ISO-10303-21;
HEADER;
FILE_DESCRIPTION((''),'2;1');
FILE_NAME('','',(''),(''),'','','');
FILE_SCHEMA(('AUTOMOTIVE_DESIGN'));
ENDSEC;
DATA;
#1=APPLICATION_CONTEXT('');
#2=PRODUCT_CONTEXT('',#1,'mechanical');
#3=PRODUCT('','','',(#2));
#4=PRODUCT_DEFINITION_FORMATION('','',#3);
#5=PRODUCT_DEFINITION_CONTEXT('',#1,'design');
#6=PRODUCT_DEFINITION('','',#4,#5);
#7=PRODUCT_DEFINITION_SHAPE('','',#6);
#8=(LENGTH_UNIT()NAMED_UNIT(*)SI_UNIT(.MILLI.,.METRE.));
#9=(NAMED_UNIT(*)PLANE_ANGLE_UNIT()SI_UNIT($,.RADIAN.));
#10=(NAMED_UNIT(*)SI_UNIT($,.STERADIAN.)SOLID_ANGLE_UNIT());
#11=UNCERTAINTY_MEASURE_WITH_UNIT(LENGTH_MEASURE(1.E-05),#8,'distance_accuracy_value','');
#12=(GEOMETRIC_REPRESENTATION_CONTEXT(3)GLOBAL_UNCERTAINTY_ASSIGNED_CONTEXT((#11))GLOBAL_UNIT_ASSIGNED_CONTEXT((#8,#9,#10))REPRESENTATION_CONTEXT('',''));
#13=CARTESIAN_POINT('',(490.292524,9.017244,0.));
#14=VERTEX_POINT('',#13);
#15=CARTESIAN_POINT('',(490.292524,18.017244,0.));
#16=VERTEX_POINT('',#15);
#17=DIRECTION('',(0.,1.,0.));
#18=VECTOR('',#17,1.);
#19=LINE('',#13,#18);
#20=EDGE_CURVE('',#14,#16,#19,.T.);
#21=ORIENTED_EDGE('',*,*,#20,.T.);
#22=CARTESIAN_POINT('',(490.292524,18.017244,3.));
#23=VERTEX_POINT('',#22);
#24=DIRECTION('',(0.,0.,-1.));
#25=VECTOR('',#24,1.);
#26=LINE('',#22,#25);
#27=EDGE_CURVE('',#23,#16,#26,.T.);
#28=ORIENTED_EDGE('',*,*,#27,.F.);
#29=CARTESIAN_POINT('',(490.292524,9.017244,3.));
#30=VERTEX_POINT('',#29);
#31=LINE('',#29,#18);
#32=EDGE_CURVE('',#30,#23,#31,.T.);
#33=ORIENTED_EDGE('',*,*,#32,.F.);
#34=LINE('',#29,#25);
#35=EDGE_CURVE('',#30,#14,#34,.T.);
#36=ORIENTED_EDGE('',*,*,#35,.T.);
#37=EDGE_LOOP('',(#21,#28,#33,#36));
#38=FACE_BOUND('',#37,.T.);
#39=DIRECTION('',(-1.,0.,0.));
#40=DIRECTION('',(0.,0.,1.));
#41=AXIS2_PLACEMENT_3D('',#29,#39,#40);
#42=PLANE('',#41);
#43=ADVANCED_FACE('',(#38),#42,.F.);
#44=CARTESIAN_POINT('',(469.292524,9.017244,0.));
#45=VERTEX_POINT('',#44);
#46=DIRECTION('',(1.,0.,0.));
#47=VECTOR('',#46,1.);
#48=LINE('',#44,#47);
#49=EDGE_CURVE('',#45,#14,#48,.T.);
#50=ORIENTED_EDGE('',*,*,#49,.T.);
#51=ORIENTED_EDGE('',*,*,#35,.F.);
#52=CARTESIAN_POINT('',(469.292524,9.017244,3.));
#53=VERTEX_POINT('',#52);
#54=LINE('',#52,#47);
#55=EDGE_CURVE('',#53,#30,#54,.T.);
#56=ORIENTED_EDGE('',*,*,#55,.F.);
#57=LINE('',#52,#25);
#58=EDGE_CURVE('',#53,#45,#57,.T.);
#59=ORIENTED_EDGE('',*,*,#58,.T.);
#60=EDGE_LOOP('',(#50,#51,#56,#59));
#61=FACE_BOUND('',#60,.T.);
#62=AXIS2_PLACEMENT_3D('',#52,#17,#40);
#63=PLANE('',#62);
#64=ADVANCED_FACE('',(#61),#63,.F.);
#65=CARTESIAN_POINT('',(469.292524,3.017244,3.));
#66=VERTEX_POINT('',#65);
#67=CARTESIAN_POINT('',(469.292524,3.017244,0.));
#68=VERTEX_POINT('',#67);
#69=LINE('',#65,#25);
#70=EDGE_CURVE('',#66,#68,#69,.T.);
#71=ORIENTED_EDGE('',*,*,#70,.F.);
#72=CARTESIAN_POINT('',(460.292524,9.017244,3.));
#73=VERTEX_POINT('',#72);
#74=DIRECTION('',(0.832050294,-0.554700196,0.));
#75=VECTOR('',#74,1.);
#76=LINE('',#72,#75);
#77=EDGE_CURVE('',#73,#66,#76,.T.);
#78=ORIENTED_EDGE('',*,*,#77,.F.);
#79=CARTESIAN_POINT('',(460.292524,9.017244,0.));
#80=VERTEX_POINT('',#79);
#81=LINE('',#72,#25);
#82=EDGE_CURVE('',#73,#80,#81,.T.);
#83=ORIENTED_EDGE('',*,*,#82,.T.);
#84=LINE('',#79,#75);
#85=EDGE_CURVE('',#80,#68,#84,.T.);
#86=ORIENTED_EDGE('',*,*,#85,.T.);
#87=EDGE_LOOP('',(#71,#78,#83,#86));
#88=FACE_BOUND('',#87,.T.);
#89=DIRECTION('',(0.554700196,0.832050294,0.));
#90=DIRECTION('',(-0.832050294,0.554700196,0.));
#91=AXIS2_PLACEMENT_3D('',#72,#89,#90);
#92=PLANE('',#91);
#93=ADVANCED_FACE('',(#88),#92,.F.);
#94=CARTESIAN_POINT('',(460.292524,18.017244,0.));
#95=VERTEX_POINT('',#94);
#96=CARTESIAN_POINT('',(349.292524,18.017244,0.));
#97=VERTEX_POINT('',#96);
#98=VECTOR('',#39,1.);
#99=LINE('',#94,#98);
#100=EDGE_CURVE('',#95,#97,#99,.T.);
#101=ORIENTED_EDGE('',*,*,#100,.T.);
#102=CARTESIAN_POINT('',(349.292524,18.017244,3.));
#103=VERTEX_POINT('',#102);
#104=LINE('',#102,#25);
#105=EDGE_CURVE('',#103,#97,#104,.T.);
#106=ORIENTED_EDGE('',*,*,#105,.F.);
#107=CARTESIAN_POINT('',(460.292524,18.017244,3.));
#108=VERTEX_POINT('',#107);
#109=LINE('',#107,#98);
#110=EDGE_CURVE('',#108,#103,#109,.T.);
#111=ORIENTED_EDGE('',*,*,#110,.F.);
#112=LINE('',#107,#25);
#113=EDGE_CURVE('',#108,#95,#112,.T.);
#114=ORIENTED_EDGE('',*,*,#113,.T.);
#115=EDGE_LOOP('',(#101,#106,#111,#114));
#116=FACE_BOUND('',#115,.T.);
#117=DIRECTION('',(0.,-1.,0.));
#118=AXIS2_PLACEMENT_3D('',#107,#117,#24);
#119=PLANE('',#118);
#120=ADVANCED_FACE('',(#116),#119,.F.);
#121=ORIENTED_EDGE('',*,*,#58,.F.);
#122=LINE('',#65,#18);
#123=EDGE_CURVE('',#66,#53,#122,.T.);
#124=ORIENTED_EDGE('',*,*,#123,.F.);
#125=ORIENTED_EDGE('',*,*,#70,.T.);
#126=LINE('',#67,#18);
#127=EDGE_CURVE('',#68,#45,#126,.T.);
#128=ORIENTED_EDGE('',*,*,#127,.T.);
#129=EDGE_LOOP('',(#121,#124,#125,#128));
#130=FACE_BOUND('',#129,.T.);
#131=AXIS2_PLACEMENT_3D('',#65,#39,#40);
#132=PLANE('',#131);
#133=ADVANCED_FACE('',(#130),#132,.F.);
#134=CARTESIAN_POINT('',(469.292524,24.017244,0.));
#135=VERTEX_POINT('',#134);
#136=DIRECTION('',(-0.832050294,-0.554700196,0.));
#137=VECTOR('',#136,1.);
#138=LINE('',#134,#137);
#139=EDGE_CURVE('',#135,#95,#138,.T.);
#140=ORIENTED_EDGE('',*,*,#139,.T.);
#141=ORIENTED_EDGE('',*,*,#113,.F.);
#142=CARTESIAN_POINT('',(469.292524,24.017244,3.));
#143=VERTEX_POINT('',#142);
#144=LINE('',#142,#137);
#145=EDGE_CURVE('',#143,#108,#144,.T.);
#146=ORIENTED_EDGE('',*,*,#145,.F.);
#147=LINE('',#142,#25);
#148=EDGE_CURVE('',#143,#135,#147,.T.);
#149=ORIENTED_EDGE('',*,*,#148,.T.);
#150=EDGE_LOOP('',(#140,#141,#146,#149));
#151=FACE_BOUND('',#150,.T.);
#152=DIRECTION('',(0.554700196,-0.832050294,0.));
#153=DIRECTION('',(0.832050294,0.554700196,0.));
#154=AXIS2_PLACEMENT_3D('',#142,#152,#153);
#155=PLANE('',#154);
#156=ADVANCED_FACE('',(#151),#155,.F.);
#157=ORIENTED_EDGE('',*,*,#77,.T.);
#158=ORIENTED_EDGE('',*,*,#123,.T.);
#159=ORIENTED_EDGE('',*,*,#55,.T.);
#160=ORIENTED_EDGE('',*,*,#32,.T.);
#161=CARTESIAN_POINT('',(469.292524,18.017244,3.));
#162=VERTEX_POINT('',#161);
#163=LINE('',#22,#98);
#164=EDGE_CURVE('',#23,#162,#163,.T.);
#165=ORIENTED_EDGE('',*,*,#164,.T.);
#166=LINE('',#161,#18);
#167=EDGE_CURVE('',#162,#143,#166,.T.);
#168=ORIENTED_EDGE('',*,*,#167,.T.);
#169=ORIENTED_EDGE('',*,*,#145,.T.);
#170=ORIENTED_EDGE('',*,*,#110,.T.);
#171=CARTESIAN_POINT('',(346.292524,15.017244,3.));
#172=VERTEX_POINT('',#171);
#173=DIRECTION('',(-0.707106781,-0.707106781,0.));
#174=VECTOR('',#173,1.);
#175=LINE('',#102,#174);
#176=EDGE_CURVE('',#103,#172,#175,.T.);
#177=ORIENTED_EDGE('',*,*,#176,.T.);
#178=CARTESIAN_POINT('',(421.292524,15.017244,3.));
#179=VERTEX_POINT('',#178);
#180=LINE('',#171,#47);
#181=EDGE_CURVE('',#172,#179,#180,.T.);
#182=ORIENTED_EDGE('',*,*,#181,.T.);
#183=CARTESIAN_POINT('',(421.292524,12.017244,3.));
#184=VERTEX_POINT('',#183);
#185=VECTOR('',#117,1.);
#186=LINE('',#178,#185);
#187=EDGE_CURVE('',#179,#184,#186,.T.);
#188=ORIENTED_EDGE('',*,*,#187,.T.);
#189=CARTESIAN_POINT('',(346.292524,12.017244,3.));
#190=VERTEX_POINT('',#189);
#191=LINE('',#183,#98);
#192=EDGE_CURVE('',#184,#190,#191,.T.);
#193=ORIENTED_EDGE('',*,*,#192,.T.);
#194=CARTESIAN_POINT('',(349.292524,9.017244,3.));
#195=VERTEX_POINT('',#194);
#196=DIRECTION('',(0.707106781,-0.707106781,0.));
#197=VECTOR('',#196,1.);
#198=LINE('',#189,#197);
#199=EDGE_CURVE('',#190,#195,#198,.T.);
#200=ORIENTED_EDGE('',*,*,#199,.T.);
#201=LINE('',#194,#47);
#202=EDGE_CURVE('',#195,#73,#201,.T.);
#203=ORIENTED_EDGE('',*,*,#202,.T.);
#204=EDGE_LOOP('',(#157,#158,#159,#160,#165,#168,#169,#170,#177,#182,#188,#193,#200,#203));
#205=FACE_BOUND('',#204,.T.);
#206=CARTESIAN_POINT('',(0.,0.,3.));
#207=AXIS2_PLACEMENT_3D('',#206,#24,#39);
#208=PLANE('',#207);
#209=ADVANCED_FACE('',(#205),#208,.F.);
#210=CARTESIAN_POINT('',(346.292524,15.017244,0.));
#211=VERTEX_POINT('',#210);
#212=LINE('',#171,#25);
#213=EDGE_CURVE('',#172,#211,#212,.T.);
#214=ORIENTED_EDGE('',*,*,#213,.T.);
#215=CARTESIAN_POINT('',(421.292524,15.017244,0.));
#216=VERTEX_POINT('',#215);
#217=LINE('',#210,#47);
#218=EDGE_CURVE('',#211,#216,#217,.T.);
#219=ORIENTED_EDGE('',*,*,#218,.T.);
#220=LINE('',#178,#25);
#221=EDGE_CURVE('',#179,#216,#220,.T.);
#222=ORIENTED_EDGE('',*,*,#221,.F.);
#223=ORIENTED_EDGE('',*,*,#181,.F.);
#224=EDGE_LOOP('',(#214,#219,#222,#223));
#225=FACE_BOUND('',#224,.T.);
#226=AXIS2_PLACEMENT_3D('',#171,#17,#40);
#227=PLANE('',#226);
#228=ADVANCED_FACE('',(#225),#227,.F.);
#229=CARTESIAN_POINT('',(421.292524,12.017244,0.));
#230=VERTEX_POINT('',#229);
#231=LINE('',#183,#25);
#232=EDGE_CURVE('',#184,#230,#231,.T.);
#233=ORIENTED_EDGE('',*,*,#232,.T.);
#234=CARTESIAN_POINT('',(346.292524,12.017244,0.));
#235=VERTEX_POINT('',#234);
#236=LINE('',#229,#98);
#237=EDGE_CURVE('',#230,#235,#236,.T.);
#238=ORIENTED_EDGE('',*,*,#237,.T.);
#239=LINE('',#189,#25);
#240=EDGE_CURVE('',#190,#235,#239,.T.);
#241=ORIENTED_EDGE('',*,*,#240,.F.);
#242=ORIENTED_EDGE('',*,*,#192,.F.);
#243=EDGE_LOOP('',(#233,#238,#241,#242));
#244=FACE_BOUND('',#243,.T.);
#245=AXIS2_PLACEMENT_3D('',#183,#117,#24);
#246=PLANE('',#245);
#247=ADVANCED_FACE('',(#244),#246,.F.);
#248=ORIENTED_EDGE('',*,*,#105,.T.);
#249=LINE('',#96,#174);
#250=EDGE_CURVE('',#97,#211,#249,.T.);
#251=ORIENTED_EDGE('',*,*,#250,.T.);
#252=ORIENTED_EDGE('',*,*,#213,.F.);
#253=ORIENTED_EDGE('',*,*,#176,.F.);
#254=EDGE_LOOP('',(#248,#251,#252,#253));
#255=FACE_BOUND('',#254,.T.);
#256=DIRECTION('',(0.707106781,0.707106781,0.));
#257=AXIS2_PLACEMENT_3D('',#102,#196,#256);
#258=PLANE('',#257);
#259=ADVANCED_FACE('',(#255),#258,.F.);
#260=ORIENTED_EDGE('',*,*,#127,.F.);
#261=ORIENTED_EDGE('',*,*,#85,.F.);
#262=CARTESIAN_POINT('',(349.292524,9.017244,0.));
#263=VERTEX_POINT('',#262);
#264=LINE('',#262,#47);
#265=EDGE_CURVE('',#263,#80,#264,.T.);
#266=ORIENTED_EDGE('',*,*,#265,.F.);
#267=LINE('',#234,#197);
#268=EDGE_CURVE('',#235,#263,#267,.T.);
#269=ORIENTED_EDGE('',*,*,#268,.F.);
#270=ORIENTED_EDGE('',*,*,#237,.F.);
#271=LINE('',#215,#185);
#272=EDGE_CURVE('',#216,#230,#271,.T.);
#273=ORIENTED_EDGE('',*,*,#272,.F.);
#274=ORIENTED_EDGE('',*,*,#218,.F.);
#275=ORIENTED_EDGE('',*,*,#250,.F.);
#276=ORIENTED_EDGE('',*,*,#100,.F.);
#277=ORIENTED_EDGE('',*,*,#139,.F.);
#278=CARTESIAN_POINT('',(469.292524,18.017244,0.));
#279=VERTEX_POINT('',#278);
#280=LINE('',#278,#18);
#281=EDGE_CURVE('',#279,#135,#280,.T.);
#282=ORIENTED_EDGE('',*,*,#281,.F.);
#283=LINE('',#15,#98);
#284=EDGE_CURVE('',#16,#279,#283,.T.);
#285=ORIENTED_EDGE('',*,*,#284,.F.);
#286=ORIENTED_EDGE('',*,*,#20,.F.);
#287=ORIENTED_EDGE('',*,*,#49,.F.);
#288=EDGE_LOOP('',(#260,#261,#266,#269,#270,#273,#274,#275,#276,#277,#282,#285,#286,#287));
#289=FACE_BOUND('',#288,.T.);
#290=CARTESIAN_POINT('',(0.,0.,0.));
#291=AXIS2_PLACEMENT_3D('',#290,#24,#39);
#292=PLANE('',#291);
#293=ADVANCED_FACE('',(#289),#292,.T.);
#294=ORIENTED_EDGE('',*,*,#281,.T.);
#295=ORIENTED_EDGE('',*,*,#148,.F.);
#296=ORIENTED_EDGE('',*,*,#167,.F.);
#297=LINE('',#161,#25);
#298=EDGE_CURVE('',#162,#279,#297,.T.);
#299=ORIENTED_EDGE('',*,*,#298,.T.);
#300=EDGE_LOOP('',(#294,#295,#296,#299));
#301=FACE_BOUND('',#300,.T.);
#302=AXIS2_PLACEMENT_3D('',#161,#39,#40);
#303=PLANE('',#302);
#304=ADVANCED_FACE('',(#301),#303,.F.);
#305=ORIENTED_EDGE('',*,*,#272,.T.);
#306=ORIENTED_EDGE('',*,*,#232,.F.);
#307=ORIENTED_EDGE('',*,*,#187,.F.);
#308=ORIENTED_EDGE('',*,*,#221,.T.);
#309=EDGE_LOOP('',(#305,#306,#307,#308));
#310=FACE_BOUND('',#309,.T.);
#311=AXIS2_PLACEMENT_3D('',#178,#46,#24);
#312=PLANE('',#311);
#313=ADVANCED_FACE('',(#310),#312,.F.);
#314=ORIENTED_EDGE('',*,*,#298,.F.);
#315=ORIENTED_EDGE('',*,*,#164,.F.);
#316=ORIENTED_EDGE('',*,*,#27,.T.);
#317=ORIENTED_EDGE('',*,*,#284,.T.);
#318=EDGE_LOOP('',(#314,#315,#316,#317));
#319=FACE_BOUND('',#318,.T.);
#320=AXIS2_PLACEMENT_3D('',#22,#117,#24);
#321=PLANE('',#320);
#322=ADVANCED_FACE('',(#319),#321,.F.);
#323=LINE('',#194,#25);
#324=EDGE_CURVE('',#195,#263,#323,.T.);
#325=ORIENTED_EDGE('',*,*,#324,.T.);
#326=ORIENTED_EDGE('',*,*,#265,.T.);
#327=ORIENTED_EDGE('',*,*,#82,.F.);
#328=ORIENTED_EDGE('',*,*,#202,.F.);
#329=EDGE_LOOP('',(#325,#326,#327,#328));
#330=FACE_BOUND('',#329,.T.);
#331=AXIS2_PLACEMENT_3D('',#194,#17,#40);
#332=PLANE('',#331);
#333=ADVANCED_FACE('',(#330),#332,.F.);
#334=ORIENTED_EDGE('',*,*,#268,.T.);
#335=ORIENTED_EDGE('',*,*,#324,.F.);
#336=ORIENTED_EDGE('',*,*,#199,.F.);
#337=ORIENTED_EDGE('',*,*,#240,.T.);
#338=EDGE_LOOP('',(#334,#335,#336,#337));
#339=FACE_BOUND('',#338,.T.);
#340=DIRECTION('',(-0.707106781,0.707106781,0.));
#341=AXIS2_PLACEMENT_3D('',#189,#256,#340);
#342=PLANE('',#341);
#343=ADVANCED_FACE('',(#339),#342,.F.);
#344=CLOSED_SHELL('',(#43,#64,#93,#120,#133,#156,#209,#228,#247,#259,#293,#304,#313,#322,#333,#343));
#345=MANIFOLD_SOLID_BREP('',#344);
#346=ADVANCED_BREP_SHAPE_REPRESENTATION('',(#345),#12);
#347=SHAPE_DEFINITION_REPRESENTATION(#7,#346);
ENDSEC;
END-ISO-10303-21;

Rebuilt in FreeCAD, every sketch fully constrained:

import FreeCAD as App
import Part
import Sketcher

V = App.Vector
Q = App.Units.Quantity


def add_polygon(sketch, points):
    """Adds a closed chain of lines whose ends are joined by coincident constraints."""
    first, n = sketch.GeometryCount, len(points)
    for a, b in zip(points, points[1:] + points[:1]):
        sketch.addGeometry(Part.LineSegment(App.Vector(*a, 0), App.Vector(*b, 0)), False)
    for i in range(n):
        sketch.addConstraint(Sketcher.Constraint("Coincident", first + i, 2, first + (i + 1) % n, 1))

doc = App.newDocument("Part")
body = doc.addObject("PartDesign::Body", "Body")

sketch1 = body.newObject("Sketcher::SketchObject", "Sketch")
sketch1.AttachmentSupport = (doc.getObject("XY_Plane"), [""])
sketch1.MapMode = "FlatFace"
add_polygon(sketch1, [(421.3, 15), (421.3, 12), (346.3, 12), (349.3, 9), (460.3, 9), (469.3, 3), (469.3, 9), (490.3, 9), (490.3, 18), (469.3, 18), (469.3, 24), (460.3, 18), (349.3, 18), (346.3, 15)])
sketch1.addConstraint(Sketcher.Constraint("Vertical", 0))
sketch1.addConstraint(Sketcher.Constraint("Horizontal", 1))
sketch1.addConstraint(Sketcher.Constraint("Horizontal", 3))
sketch1.addConstraint(Sketcher.Constraint("Vertical", 5))
sketch1.addConstraint(Sketcher.Constraint("Horizontal", 6))
sketch1.addConstraint(Sketcher.Constraint("Vertical", 7))
sketch1.addConstraint(Sketcher.Constraint("Horizontal", 8))
sketch1.addConstraint(Sketcher.Constraint("Vertical", 9))
sketch1.addConstraint(Sketcher.Constraint("Horizontal", 11))
sketch1.addConstraint(Sketcher.Constraint("Horizontal", 13))
sketch1.addConstraint(Sketcher.Constraint("Perpendicular", 2, 12))
sketch1.addConstraint(Sketcher.Constraint("Horizontal", 3, 2, 5, 2))
sketch1.addConstraint(Sketcher.Constraint("Horizontal", 8, 2, 10, 2))
sketch1.addConstraint(Sketcher.Constraint("Vertical", 5, 2, 8, 2))
sketch1.addConstraint(Sketcher.Constraint("Vertical", 3, 2, 10, 2))
sketch1.addConstraint(Sketcher.Constraint("Vertical", 2, 2, 11, 2))
sketch1.addConstraint(Sketcher.Constraint("Vertical", 1, 2, 12, 2))
sketch1.addConstraint(Sketcher.Constraint("Equal", 5, 9))
sketch1.addConstraint(Sketcher.Constraint("Equal", 2, 12))
sketch1.addConstraint(Sketcher.Constraint("DistanceX", 1, 2, 1, 1, Q("75 mm")))
sketch1.addConstraint(Sketcher.Constraint("DistanceX", 3, 1, 3, 2, Q("111 mm")))
sketch1.addConstraint(Sketcher.Constraint("DistanceX", 6, 1, 6, 2, Q("21 mm")))
sketch1.addConstraint(Sketcher.Constraint("DistanceY", 0, 2, 0, 1, Q("3 mm")))
sketch1.addConstraint(Sketcher.Constraint("DistanceY", 5, 1, 5, 2, Q("6 mm")))
sketch1.addConstraint(Sketcher.Constraint("DistanceY", 7, 1, 7, 2, Q("9 mm")))
sketch1.addConstraint(Sketcher.Constraint("DistanceX", 3, 2, 4, 2, Q("9 mm")))
sketch1.addConstraint(Sketcher.Constraint("DistanceX", -1, 1, 0, 2, Q("421.292524 mm")))
sketch1.addConstraint(Sketcher.Constraint("DistanceY", -1, 1, 0, 2, Q("12.017244 mm")))
pad1 = body.newObject("PartDesign::Pad", "Pad")
pad1.Profile = sketch1
pad1.Length = 3

doc.recompute()
